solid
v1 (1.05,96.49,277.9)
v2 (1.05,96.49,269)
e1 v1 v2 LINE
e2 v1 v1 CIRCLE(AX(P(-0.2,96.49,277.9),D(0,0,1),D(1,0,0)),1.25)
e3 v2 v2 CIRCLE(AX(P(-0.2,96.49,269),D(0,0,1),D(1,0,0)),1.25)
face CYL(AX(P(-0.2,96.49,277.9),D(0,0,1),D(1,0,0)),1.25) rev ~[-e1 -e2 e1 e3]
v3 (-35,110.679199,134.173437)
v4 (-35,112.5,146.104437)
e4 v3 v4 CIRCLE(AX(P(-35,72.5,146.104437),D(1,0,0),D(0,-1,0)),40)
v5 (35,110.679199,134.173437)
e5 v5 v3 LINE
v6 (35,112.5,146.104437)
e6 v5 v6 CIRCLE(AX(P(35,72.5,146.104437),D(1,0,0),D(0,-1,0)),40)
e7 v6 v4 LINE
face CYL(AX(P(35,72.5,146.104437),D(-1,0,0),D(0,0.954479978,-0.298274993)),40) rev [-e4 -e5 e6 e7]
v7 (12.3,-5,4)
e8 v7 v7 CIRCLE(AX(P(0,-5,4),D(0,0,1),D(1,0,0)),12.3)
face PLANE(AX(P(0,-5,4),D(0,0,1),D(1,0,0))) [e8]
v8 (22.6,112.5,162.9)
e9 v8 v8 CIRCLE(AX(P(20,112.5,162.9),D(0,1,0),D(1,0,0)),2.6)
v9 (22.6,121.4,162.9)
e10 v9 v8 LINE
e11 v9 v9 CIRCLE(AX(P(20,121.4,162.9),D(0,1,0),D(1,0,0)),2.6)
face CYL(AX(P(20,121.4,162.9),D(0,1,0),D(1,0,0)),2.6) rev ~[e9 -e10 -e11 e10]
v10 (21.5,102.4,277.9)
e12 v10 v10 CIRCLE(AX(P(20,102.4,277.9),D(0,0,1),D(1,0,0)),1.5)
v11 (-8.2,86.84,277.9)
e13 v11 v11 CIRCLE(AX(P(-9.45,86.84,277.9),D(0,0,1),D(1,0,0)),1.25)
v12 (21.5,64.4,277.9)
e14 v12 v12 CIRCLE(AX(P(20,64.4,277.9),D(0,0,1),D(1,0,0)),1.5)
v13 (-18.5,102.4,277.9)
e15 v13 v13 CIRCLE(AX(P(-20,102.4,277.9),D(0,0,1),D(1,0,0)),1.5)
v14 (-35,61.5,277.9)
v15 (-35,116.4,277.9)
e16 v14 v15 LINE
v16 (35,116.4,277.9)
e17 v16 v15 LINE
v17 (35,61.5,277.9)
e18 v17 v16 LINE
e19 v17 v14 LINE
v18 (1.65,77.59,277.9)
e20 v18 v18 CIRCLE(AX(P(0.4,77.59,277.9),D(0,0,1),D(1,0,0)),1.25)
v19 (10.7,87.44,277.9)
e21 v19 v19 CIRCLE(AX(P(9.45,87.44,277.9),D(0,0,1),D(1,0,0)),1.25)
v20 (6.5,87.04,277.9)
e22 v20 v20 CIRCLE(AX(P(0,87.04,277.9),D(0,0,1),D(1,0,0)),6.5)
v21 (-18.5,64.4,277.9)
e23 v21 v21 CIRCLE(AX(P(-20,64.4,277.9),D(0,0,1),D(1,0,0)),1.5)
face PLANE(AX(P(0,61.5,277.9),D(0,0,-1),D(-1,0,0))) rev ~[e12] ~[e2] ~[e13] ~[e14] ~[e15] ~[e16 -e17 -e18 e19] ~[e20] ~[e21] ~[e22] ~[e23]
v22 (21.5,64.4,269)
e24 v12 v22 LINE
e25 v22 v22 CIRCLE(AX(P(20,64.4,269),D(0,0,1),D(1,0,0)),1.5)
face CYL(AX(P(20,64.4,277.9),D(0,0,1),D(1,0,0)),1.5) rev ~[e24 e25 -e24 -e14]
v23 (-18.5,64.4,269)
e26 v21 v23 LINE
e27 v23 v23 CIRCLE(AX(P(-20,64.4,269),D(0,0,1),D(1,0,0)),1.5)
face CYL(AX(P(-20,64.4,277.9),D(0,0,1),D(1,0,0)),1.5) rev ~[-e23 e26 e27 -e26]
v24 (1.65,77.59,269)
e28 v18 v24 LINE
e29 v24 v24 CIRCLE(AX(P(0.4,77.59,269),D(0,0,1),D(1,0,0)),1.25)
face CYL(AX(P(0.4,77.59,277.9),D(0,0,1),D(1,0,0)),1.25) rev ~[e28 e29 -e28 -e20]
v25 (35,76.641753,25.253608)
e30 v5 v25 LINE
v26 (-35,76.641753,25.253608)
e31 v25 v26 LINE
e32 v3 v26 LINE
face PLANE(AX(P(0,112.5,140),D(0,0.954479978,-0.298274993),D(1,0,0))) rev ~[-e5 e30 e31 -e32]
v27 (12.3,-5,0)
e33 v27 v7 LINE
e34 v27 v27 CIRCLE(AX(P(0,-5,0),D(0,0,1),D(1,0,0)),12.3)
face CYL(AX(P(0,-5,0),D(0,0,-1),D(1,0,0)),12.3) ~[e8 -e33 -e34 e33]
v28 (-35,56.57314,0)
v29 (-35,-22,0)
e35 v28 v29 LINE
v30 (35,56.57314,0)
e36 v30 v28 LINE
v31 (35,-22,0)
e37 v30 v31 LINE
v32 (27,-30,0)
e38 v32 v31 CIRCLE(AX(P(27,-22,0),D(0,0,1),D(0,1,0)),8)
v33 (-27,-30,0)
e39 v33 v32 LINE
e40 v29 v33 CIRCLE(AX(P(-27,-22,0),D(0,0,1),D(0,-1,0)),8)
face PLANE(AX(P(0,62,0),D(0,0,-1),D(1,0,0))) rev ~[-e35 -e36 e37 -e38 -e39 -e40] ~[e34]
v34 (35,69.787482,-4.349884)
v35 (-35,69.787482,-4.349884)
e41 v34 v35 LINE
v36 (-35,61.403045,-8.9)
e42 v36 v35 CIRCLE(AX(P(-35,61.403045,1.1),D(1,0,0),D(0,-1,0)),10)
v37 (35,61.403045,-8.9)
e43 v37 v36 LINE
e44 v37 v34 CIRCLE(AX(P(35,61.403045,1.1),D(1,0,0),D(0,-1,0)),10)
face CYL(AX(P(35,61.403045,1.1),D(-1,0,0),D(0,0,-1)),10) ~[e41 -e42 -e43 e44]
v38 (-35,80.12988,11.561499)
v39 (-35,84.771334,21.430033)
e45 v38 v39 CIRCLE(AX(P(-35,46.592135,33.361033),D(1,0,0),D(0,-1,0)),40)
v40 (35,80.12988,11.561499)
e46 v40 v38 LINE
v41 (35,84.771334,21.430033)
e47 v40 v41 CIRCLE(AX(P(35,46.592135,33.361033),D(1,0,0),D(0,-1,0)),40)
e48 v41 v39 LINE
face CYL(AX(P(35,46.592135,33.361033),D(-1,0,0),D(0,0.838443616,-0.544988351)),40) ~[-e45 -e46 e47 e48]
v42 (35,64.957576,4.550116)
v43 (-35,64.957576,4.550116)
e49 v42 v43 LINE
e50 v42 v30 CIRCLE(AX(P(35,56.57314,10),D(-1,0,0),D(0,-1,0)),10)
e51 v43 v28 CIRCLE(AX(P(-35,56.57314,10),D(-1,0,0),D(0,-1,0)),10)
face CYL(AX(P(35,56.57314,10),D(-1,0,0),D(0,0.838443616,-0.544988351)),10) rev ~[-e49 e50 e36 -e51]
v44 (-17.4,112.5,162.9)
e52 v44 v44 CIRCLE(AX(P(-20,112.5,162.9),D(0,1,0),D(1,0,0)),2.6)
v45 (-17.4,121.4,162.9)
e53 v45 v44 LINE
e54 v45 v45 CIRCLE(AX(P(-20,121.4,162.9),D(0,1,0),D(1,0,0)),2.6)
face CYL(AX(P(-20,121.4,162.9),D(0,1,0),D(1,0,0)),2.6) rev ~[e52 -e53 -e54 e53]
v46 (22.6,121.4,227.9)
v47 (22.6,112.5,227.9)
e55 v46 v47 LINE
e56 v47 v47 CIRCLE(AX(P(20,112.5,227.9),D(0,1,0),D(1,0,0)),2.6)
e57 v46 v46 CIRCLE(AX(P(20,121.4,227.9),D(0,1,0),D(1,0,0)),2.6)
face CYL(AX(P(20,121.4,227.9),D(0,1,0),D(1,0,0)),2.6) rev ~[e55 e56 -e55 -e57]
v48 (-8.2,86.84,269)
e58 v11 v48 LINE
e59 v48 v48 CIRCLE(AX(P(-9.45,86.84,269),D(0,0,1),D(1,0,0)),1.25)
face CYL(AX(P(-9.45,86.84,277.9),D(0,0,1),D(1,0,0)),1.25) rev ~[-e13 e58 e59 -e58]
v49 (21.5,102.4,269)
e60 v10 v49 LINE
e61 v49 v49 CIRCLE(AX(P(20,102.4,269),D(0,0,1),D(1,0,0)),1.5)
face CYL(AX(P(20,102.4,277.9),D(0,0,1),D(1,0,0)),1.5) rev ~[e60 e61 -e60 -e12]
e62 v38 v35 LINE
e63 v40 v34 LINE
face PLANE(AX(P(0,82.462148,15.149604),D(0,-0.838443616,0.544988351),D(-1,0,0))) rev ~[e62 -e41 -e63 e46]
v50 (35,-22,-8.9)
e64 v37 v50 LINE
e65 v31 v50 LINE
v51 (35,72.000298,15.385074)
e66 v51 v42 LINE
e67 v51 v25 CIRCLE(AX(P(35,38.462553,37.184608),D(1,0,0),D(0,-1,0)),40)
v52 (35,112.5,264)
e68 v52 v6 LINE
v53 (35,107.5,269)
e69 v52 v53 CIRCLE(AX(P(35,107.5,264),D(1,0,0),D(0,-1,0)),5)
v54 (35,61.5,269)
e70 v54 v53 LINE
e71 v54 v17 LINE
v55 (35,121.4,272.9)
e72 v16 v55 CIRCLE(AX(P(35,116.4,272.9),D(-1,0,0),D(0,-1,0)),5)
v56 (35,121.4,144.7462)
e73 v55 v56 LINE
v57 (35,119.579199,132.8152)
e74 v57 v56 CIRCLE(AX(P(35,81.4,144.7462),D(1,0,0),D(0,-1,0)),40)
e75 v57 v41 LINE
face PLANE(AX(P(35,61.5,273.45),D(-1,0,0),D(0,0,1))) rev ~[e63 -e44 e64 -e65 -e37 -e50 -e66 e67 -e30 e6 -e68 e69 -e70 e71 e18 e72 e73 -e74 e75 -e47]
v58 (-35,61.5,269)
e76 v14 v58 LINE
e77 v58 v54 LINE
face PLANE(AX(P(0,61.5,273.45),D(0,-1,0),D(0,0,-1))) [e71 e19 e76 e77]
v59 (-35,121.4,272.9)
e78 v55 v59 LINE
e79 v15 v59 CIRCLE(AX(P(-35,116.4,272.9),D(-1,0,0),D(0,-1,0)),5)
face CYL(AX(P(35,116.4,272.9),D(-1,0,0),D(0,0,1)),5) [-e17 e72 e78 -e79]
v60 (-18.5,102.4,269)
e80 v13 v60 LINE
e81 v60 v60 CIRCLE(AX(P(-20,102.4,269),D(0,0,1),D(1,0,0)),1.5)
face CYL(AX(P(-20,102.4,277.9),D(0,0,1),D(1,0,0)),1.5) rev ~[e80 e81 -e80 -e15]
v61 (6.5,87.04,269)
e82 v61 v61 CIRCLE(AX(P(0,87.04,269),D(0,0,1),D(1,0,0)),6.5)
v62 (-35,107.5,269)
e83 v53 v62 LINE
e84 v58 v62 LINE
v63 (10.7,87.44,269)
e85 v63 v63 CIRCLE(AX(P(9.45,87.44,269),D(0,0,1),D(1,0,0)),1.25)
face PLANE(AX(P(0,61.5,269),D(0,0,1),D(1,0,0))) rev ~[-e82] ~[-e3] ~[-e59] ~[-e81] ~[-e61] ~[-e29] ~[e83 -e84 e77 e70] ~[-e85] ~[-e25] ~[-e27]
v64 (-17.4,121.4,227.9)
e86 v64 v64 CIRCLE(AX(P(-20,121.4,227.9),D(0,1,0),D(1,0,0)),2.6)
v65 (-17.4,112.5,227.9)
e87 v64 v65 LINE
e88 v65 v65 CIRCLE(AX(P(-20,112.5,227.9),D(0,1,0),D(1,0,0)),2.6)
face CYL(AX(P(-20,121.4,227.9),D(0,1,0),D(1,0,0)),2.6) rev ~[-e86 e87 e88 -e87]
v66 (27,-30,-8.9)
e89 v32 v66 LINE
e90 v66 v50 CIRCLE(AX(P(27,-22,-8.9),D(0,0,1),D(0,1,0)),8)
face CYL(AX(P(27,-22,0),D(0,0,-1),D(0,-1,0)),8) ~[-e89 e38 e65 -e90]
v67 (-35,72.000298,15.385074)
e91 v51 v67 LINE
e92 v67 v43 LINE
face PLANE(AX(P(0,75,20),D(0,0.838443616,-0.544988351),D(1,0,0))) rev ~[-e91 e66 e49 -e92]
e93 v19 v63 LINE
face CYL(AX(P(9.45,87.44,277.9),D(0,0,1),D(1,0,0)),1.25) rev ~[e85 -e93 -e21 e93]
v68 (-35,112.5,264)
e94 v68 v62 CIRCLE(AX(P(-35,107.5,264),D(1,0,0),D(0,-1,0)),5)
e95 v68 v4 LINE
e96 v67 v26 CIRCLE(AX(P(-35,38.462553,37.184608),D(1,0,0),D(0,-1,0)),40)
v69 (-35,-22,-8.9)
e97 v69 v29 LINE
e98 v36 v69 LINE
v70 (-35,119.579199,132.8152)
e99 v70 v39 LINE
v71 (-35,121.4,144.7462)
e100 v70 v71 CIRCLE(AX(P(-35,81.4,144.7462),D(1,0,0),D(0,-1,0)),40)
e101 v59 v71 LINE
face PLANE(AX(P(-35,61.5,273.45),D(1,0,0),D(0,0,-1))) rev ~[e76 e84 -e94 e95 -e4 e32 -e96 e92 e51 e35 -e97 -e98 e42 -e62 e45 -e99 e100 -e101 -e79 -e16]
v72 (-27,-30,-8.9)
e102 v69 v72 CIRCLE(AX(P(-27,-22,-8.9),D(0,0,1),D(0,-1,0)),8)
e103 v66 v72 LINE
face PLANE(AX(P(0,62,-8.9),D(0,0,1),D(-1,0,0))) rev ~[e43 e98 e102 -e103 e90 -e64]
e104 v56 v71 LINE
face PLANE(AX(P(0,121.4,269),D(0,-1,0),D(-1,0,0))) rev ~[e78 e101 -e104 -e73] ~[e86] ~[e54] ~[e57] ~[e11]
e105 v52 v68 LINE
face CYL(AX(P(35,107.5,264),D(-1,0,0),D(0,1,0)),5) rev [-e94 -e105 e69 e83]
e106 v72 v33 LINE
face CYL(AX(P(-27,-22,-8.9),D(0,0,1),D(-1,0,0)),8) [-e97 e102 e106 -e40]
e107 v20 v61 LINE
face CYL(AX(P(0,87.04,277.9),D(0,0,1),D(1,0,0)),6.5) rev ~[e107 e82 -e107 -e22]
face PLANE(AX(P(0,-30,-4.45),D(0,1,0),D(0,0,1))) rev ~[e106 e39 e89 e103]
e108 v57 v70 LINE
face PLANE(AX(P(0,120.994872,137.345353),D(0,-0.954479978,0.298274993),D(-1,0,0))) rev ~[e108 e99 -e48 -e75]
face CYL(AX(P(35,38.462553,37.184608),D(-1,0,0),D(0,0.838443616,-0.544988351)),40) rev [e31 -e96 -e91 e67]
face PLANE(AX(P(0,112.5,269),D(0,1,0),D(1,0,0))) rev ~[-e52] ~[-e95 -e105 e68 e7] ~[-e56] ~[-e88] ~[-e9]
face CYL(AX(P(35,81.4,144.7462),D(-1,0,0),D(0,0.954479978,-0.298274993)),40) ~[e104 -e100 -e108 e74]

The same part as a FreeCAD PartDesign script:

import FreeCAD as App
import Part
import Sketcher
from FreeCAD import Vector


def edges_at(feature, points):
    """Names of the edges that pass closest to the given points."""
    edges = feature.Shape.Edges
    near = lambda p: min(range(len(edges)), key=lambda i: edges[i].distToShape(Part.Vertex(*p))[0])
    return sorted({f"Edge{near(p) + 1}" for p in points})

doc = App.newDocument("Part")
body = doc.addObject("PartDesign::Body", "Body")

# Sketch on XZ plane
sketch1 = body.newObject("Sketcher::SketchObject", "Sketch")
sketch1.AttachmentSupport = (doc.getObject("XZ_Plane"), [""])
sketch1.MapMode = "FlatFace"
sketch1.addGeometry([
    Part.LineSegment(Vector(-35, -9, 0), Vector(-35, 0, 0)),
    Part.LineSegment(Vector(-35, 0, 0), Vector(35, 0, 0)),
    Part.LineSegment(Vector(35, 0, 0), Vector(35, -9, 0)),
    Part.LineSegment(Vector(35, -9, 0), Vector(-35, -9, 0)),
], False)
sketch1.addConstraint([
    Sketcher.Constraint("Coincident", 0, 2, 1, 1),
    Sketcher.Constraint("Coincident", 1, 2, 2, 1),
    Sketcher.Constraint("Coincident", 2, 2, 3, 1),
    Sketcher.Constraint("Coincident", 3, 2, 0, 1),
    Sketcher.Constraint("Vertical", 0),
    Sketcher.Constraint("Horizontal", 1),
    Sketcher.Constraint("Vertical", 2),
    Sketcher.Constraint("Horizontal", 3),
    Sketcher.Constraint("Symmetric", 0, 2, 1, 2, -1, 1),
    Sketcher.Constraint("DistanceX", 1, 1, 1, 2, 70.0),
    Sketcher.Constraint("DistanceY", 0, 1, 0, 2, 8.9),
])

# Sketch on YZ plane
sketch2 = body.newObject("Sketcher::SketchObject", "Sketch001")
sketch2.AttachmentSupport = (doc.getObject("YZ_Plane"), [""])
sketch2.MapMode = "FlatFace"
sketch2.addGeometry([
    Part.LineSegment(Vector(62, 269, 0), Vector(112, 269, 0)),  # 0
    Part.LineSegment(Vector(112, 269, 0), Vector(112, 140, 0)),  # 1
    Part.LineSegment(Vector(112, 140, 0), Vector(75, 20, 0)),  # 2
    Part.LineSegment(Vector(75, 20, 0), Vector(62, 0, 0)),  # 3
    Part.LineSegment(Vector(62, 0, 0), Vector(-30, 0, 0)),  # 4
], False)
sketch2.addConstraint([
    Sketcher.Constraint("Coincident", 0, 2, 1, 1),
    Sketcher.Constraint("Coincident", 1, 2, 2, 1),
    Sketcher.Constraint("Coincident", 2, 2, 3, 1),
    Sketcher.Constraint("Coincident", 3, 2, 4, 1),
    Sketcher.Constraint("Horizontal", 0),
    Sketcher.Constraint("Vertical", 1),
    Sketcher.Constraint("Horizontal", 4),
    Sketcher.Constraint("PointOnObject", 3, 2, -1),
    Sketcher.Constraint("DistanceX", 0, 1, 0, 2, 51.0),
    Sketcher.Constraint("DistanceX", 4, 2, 4, 1, 92.0),
    Sketcher.Constraint("DistanceY", 1, 2, 1, 1, 129.0),
    Sketcher.Constraint("DistanceY", -1, 1, 0, 1, 269.0),
    Sketcher.Constraint("DistanceX", -1, 1, 2, 2, 75.0),
    Sketcher.Constraint("DistanceY", -1, 1, 2, 2, 20.0),
    Sketcher.Constraint("DistanceX", -1, 1, 3, 2, 62.0),
    Sketcher.Constraint("DistanceX", -1, 1, 0, 1, 61.5),
])
doc.recompute()

additivepipe = body.newObject("PartDesign::AdditivePipe", "AdditivePipe")
additivepipe.Profile = sketch1
additivepipe.Spine = (sketch2, ["Edge1", "Edge2", "Edge3", "Edge4", "Edge5"])
additivepipe.Transition = "Right corner"

# Sketch on XY plane
sketch3 = body.newObject("Sketcher::SketchObject", "Sketch002")
sketch3.AttachmentSupport = (doc.getObject("XY_Plane"), [""])
sketch3.MapMode = "FlatFace"
sketch3.addGeometry(Part.Circle(Vector(0, -5, 0), Vector(0, 0, 1), 12), False)
sketch3.addConstraint([
    Sketcher.Constraint("PointOnObject", 0, 3, -2),
    Sketcher.Constraint("Diameter", 0, 24.6),
    Sketcher.Constraint("DistanceY", 0, 3, -1, 1, 5.0),
])
pad1 = body.newObject("PartDesign::Pad", "Pad")
pad1.Profile = sketch3
pad1.Length = 4
doc.recompute()

fillet = body.newObject("PartDesign::Fillet", "Fillet")
fillet.Base = (pad1, edges_at(pad1, [(0, 66.83, -8.9), (0, 62, 0)]))
fillet.Radius = 10
doc.recompute()

fillet2 = body.newObject("PartDesign::Fillet", "Fillet001")
fillet2.Base = (fillet, edges_at(fillet, [(0, 83.13, 16.176), (0, 75, 20)]))
fillet2.Radius = 40
doc.recompute()

fillet3 = body.newObject("PartDesign::Fillet", "Fillet002")
fillet3.Base = (fillet2, edges_at(fillet2, [(35, -30, -4.45), (-35, -30, -4.45)]))
fillet3.Radius = 8
doc.recompute()

fillet4 = body.newObject("PartDesign::Fillet", "Fillet003")
fillet4.Base = (fillet3, edges_at(fillet3, [(0, 121.4, 138.642), (0, 112.5, 140)]))
fillet4.Radius = 40
doc.recompute()

fillet5 = body.newObject("PartDesign::Fillet", "Fillet004")
fillet5.Base = (fillet4, edges_at(fillet4, [(0, 112.5, 269), (0, 121.4, 277.9)]))
fillet5.Radius = 5

# Sketch on XY plane
sketch4 = body.newObject("Sketcher::SketchObject", "Sketch003")
sketch4.AttachmentSupport = (doc.getObject("XY_Plane"), [""])
sketch4.MapMode = "FlatFace"
sketch4.AttachmentOffset = App.Placement(Vector(0, 0, 277.9), App.Rotation())
sketch4.addGeometry(Part.Circle(Vector(0, 87, 0), Vector(0, 0, 1), 6), False)
sketch4.addConstraint([
    Sketcher.Constraint("PointOnObject", 0, 3, -2),
    Sketcher.Constraint("Diameter", 0, 13.0),
    Sketcher.Constraint("DistanceY", -1, 1, 0, 3, 87.04),
])
pocket1 = body.newObject("PartDesign::Pocket", "Pocket")
pocket1.Profile = sketch4
pocket1.Type = "UpToFirst"

# Sketch on XY plane
sketch5 = body.newObject("Sketcher::SketchObject", "Sketch004")
sketch5.AttachmentSupport = (doc.getObject("XY_Plane"), [""])
sketch5.MapMode = "FlatFace"
sketch5.AttachmentOffset = App.Placement(Vector(0, 0, 277.9), App.Rotation())
sketch5.addGeometry(Part.Circle(Vector(-0.2, 96.5, 0), Vector(0, 0, 1), 1.2), False)
sketch5.addConstraint([
    Sketcher.Constraint("Diameter", 0, 2.5),
    Sketcher.Constraint("DistanceX", 0, 3, -1, 1, 0.2),
    Sketcher.Constraint("DistanceY", -1, 1, 0, 3, 96.49),
])
pocket2 = body.newObject("PartDesign::Pocket", "Pocket001")
pocket2.Profile = sketch5
pocket2.Type = "UpToFirst"

# Sketch on XY plane
sketch6 = body.newObject("Sketcher::SketchObject", "Sketch005")
sketch6.AttachmentSupport = (doc.getObject("XY_Plane"), [""])
sketch6.MapMode = "FlatFace"
sketch6.AttachmentOffset = App.Placement(Vector(0, 0, 277.9), App.Rotation())
sketch6.addGeometry(Part.Circle(Vector(0.4, 77.6, 0), Vector(0, 0, 1), 1.2), False)
sketch6.addConstraint([
    Sketcher.Constraint("Diameter", 0, 2.5),
    Sketcher.Constraint("DistanceX", -1, 1, 0, 3, 0.4),
    Sketcher.Constraint("DistanceY", -1, 1, 0, 3, 77.59),
])
pocket3 = body.newObject("PartDesign::Pocket", "Pocket002")
pocket3.Profile = sketch6
pocket3.Type = "UpToFirst"

# Sketch on XY plane
sketch7 = body.newObject("Sketcher::SketchObject", "Sketch006")
sketch7.AttachmentSupport = (doc.getObject("XY_Plane"), [""])
sketch7.MapMode = "FlatFace"
sketch7.AttachmentOffset = App.Placement(Vector(0, 0, 277.9), App.Rotation())
sketch7.addGeometry(Part.Circle(Vector(-9.4, 86.8, 0), Vector(0, 0, 1), 1.2), False)
sketch7.addConstraint([
    Sketcher.Constraint("Diameter", 0, 2.5),
    Sketcher.Constraint("DistanceX", 0, 3, -1, 1, 9.45),
    Sketcher.Constraint("DistanceY", -1, 1, 0, 3, 86.84),
])
pocket4 = body.newObject("PartDesign::Pocket", "Pocket003")
pocket4.Profile = sketch7
pocket4.Type = "UpToFirst"

# Sketch on XY plane
sketch8 = body.newObject("Sketcher::SketchObject", "Sketch007")
sketch8.AttachmentSupport = (doc.getObject("XY_Plane"), [""])
sketch8.MapMode = "FlatFace"
sketch8.AttachmentOffset = App.Placement(Vector(0, 0, 277.9), App.Rotation())
sketch8.addGeometry(Part.Circle(Vector(9.4, 87.4, 0), Vector(0, 0, 1), 1.2), False)
sketch8.addConstraint([
    Sketcher.Constraint("Diameter", 0, 2.5),
    Sketcher.Constraint("DistanceX", -1, 1, 0, 3, 9.45),
    Sketcher.Constraint("DistanceY", -1, 1, 0, 3, 87.44),
])
pocket5 = body.newObject("PartDesign::Pocket", "Pocket004")
pocket5.Profile = sketch8
pocket5.Type = "UpToFirst"

# Sketch on XZ plane
sketch9 = body.newObject("Sketcher::SketchObject", "Sketch008")
sketch9.AttachmentSupport = (doc.getObject("XZ_Plane"), [""])
sketch9.MapMode = "FlatFace"
sketch9.AttachmentOffset = App.Placement(Vector(0, 0, -121.4), App.Rotation())
sketch9.addGeometry(Part.Circle(Vector(-20, 162.9, 0), Vector(0, 0, 1), 2.6), False)
sketch9.addConstraint([
    Sketcher.Constraint("Diameter", 0, 5.2),
    Sketcher.Constraint("DistanceX", 0, 3, -1, 1, 20.0),
    Sketcher.Constraint("DistanceY", -1, 1, 0, 3, 162.9),
])
pocket6 = body.newObject("PartDesign::Pocket", "Pocket005")
pocket6.Profile = sketch9
pocket6.Type = "UpToFirst"
pocket6.Reversed = True

# Sketch on XZ plane
sketch10 = body.newObject("Sketcher::SketchObject", "Sketch009")
sketch10.AttachmentSupport = (doc.getObject("XZ_Plane"), [""])
sketch10.MapMode = "FlatFace"
sketch10.AttachmentOffset = App.Placement(Vector(0, 0, -121.4), App.Rotation())
sketch10.addGeometry(Part.Circle(Vector(20, 162.9, 0), Vector(0, 0, 1), 2.6), False)
sketch10.addConstraint([
    Sketcher.Constraint("Diameter", 0, 5.2),
    Sketcher.Constraint("DistanceX", -1, 1, 0, 3, 20.0),
    Sketcher.Constraint("DistanceY", -1, 1, 0, 3, 162.9),
])
pocket7 = body.newObject("PartDesign::Pocket", "Pocket006")
pocket7.Profile = sketch10
pocket7.Type = "UpToFirst"
pocket7.Reversed = True

# Sketch on XZ plane
sketch11 = body.newObject("Sketcher::SketchObject", "Sketch010")
sketch11.AttachmentSupport = (doc.getObject("XZ_Plane"), [""])
sketch11.MapMode = "FlatFace"
sketch11.AttachmentOffset = App.Placement(Vector(0, 0, -121.4), App.Rotation())
sketch11.addGeometry(Part.Circle(Vector(-20, 227.9, 0), Vector(0, 0, 1), 2.6), False)
sketch11.addConstraint([
    Sketcher.Constraint("Diameter", 0, 5.2),
    Sketcher.Constraint("DistanceX", 0, 3, -1, 1, 20.0),
    Sketcher.Constraint("DistanceY", -1, 1, 0, 3, 227.9),
])
pocket8 = body.newObject("PartDesign::Pocket", "Pocket007")
pocket8.Profile = sketch11
pocket8.Type = "UpToFirst"
pocket8.Reversed = True

# Sketch on XZ plane
sketch12 = body.newObject("Sketcher::SketchObject", "Sketch011")
sketch12.AttachmentSupport = (doc.getObject("XZ_Plane"), [""])
sketch12.MapMode = "FlatFace"
sketch12.AttachmentOffset = App.Placement(Vector(0, 0, -121.4), App.Rotation())
sketch12.addGeometry(Part.Circle(Vector(20, 227.9, 0), Vector(0, 0, 1), 2.6), False)
sketch12.addConstraint([
    Sketcher.Constraint("Diameter", 0, 5.2),
    Sketcher.Constraint("DistanceX", -1, 1, 0, 3, 20.0),
    Sketcher.Constraint("DistanceY", -1, 1, 0, 3, 227.9),
])
pocket9 = body.newObject("PartDesign::Pocket", "Pocket008")
pocket9.Profile = sketch12
pocket9.Type = "UpToFirst"
pocket9.Reversed = True

# Sketch on XY plane
sketch13 = body.newObject("Sketcher::SketchObject", "Sketch012")
sketch13.AttachmentSupport = (doc.getObject("XY_Plane"), [""])
sketch13.MapMode = "FlatFace"
sketch13.AttachmentOffset = App.Placement(Vector(0, 0, 277.9), App.Rotation())
sketch13.addGeometry(Part.Circle(Vector(20, 102.4, 0), Vector(0, 0, 1), 1.5), False)
sketch13.addConstraint([
    Sketcher.Constraint("Diameter", 0, 3.0),
    Sketcher.Constraint("DistanceX", -1, 1, 0, 3, 20.0),
    Sketcher.Constraint("DistanceY", -1, 1, 0, 3, 102.4),
])
pocket10 = body.newObject("PartDesign::Pocket", "Pocket009")
pocket10.Profile = sketch13
pocket10.Type = "UpToFirst"

# Sketch on XY plane
sketch14 = body.newObject("Sketcher::SketchObject", "Sketch013")
sketch14.AttachmentSupport = (doc.getObject("XY_Plane"), [""])
sketch14.MapMode = "FlatFace"
sketch14.AttachmentOffset = App.Placement(Vector(0, 0, 277.9), App.Rotation())
sketch14.addGeometry(Part.Circle(Vector(20, 64.4, 0), Vector(0, 0, 1), 1.5), False)
sketch14.addConstraint([
    Sketcher.Constraint("Diameter", 0, 3.0),
    Sketcher.Constraint("DistanceX", -1, 1, 0, 3, 20.0),
    Sketcher.Constraint("DistanceY", -1, 1, 0, 3, 64.4),
])
pocket11 = body.newObject("PartDesign::Pocket", "Pocket010")
pocket11.Profile = sketch14
pocket11.Type = "UpToFirst"

# Sketch on XY plane
sketch15 = body.newObject("Sketcher::SketchObject", "Sketch014")
sketch15.AttachmentSupport = (doc.getObject("XY_Plane"), [""])
sketch15.MapMode = "FlatFace"
sketch15.AttachmentOffset = App.Placement(Vector(0, 0, 277.9), App.Rotation())
sketch15.addGeometry(Part.Circle(Vector(-20, 102.4, 0), Vector(0, 0, 1), 1.5), False)
sketch15.addConstraint([
    Sketcher.Constraint("Diameter", 0, 3.0),
    Sketcher.Constraint("DistanceX", 0, 3, -1, 1, 20.0),
    Sketcher.Constraint("DistanceY", -1, 1, 0, 3, 102.4),
])
pocket12 = body.newObject("PartDesign::Pocket", "Pocket011")
pocket12.Profile = sketch15
pocket12.Type = "UpToFirst"

# Sketch on XY plane
sketch16 = body.newObject("Sketcher::SketchObject", "Sketch015")
sketch16.AttachmentSupport = (doc.getObject("XY_Plane"), [""])
sketch16.MapMode = "FlatFace"
sketch16.AttachmentOffset = App.Placement(Vector(0, 0, 277.9), App.Rotation())
sketch16.addGeometry(Part.Circle(Vector(-20, 64.4, 0), Vector(0, 0, 1), 1.5), False)
sketch16.addConstraint([
    Sketcher.Constraint("Diameter", 0, 3.0),
    Sketcher.Constraint("DistanceX", 0, 3, -1, 1, 20.0),
    Sketcher.Constraint("DistanceY", -1, 1, 0, 3, 64.4),
])
pocket13 = body.newObject("PartDesign::Pocket", "Pocket012")
pocket13.Profile = sketch16
pocket13.Type = "UpToFirst"

doc.recompute()
